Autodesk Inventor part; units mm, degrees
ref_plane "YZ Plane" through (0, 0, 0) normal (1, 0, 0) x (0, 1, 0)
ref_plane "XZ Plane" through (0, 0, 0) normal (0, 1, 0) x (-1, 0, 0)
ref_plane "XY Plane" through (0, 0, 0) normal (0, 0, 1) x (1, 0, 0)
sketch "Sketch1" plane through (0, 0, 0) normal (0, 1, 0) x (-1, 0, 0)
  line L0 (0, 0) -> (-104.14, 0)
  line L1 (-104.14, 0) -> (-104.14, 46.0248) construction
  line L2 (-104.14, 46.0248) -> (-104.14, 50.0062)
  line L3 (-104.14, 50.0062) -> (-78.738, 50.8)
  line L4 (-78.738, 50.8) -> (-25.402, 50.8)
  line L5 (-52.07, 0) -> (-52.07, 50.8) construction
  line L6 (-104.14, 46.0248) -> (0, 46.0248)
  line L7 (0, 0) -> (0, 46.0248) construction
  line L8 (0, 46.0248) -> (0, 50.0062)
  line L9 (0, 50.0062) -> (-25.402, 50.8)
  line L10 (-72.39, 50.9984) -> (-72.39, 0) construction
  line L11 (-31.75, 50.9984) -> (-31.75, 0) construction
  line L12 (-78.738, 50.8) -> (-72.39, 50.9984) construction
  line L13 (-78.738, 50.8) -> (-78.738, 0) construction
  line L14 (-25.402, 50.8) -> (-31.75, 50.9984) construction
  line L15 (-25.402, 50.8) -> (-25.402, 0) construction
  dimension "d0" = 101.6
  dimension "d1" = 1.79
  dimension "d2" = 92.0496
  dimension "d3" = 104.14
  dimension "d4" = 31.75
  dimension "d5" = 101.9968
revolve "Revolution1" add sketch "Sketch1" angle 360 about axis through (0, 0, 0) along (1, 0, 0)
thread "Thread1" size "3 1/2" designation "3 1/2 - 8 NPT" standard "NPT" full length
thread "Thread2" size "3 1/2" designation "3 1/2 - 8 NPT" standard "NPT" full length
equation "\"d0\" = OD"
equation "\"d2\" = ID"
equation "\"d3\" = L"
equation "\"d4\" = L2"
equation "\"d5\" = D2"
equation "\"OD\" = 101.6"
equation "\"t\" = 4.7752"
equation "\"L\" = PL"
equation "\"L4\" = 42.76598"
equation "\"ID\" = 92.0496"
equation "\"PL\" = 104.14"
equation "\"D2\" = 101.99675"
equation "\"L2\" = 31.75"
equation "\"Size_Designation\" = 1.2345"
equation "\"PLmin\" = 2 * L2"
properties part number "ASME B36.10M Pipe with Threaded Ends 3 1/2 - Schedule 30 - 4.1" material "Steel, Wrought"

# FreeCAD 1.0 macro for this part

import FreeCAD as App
import Part
import Sketcher

V = App.Vector
Q = App.Units.Quantity


def add_polygon(sketch, points):
    """Adds a closed chain of lines whose ends are joined by coincident constraints."""
    first, n = sketch.GeometryCount, len(points)
    for a, b in zip(points, points[1:] + points[:1]):
        sketch.addGeometry(Part.LineSegment(App.Vector(*a, 0), App.Vector(*b, 0)), False)
    for i in range(n):
        sketch.addConstraint(Sketcher.Constraint("Coincident", first + i, 2, first + (i + 1) % n, 1))

doc = App.newDocument("Part")
params = doc.addObject("Spreadsheet::Sheet", "Params")
for row, (alias, value) in enumerate([
    ("sketch1_width", "4.1 in"),
    ("revolution_angle", "360 deg"),
], start=1):
    params.set(f"A{row}", alias)
    params.set(f"B{row}", "=" + value)
    params.setAlias(f"B{row}", alias)

body = doc.addObject("PartDesign::Body", "Body")

# Sketch on XZ plane
sketch1 = body.newObject("Sketcher::SketchObject", "Sketch")
sketch1.AttachmentSupport = (doc.getObject("XZ_Plane"), [""])
sketch1.MapMode = "FlatFace"
add_polygon(sketch1, [(104.14, 50.0062), (104.14, 46.0248), (0, 46.0248), (0, 50.0062), (25.402, 50.8), (78.738, 50.8)])  # lines 0-5
sketch1.addConstraint([
    Sketcher.Constraint("Vertical", 0),
    Sketcher.Constraint("Horizontal", 1),
    Sketcher.Constraint("Vertical", 2),
    Sketcher.Constraint("Horizontal", 4),
    Sketcher.Constraint("PointOnObject", 1, 2, -2),
    Sketcher.Constraint("Horizontal", 2, 2, 5, 2),
    Sketcher.Constraint("Equal", 3, 5),
    Sketcher.Constraint("DistanceX", 1, 2, 1, 1, Q("4.1 in")),
    Sketcher.Constraint("Angle", 3, Q("1.79 deg")),
    Sketcher.Constraint("DistanceY", -1, 1, 3, 2, Q("2 in")),
    Sketcher.Constraint("DistanceY", -1, 1, 0, 2, Q("1.812 in")),
    Sketcher.Constraint("DistanceY", -1, 1, 2, 2, Q("1.968748 in")),
])
sketch1.setExpression("Constraints[13]", "Params.sketch1_width")
revolution = body.newObject("PartDesign::Revolution", "Revolution")
revolution.Profile = sketch1
revolution.ReferenceAxis = (sketch1, ["H_Axis"])
revolution.setExpression("Angle", "Params.revolution_angle")

doc.recompute()
